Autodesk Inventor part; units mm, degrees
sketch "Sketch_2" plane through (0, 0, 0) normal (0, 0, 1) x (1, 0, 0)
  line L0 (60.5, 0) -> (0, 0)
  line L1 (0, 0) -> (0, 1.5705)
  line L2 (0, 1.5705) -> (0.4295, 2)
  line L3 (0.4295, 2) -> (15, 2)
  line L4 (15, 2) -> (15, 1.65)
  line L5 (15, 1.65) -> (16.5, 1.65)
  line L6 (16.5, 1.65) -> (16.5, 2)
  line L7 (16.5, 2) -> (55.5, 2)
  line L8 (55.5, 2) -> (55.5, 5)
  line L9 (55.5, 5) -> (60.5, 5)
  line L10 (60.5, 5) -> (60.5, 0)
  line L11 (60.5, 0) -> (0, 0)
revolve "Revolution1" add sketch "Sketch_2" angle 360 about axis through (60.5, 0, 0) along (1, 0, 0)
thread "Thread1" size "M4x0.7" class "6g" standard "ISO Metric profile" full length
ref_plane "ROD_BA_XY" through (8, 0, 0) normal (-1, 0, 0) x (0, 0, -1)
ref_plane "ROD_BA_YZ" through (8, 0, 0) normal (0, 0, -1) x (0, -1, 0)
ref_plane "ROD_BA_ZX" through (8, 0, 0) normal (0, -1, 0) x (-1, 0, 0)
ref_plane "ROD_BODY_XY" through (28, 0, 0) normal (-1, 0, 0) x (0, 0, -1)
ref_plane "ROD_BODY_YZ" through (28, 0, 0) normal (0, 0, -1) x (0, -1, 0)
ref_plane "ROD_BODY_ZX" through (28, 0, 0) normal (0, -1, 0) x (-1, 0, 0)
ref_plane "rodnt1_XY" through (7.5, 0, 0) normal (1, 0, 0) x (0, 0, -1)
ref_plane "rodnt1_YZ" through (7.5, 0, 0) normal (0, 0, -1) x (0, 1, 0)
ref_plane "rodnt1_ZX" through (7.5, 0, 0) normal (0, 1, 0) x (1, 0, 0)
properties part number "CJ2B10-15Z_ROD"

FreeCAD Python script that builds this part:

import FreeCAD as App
import Part
import Sketcher
from FreeCAD import Vector
Q = App.Units.Quantity


def add_polygon(sketch, points):
    """Adds a closed chain of lines whose ends are joined by coincident constraints."""
    first, n = sketch.GeometryCount, len(points)
    for a, b in zip(points, points[1:] + points[:1]):
        sketch.addGeometry(Part.LineSegment(App.Vector(*a, 0), App.Vector(*b, 0)), False)
    for i in range(n):
        sketch.addConstraint(Sketcher.Constraint("Coincident", first + i, 2, first + (i + 1) % n, 1))

doc = App.newDocument("Part")
body = doc.addObject("PartDesign::Body", "Body")

# Sketch on XY plane
sketch1 = body.newObject("Sketcher::SketchObject", "Sketch")
sketch1.AttachmentSupport = (doc.getObject("XY_Plane"), [""])
sketch1.MapMode = "FlatFace"
add_polygon(sketch1, [(0, 0), (60.5, 0), (60.5, 5), (55.5, 5), (55.5, 2), (16.5, 2), (16.5, 1.65), (15, 1.65), (15, 2), (0.43, 2), (0, 1.57)])  # lines 0-10
sketch1.addConstraint(Sketcher.Constraint("Horizontal", 0))
sketch1.addConstraint(Sketcher.Constraint("Vertical", 1))
sketch1.addConstraint(Sketcher.Constraint("Horizontal", 2))
sketch1.addConstraint(Sketcher.Constraint("Vertical", 3))
sketch1.addConstraint(Sketcher.Constraint("Horizontal", 4))
sketch1.addConstraint(Sketcher.Constraint("Vertical", 5))
sketch1.addConstraint(Sketcher.Constraint("Horizontal", 6))
sketch1.addConstraint(Sketcher.Constraint("Vertical", 7))
sketch1.addConstraint(Sketcher.Constraint("Horizontal", 8))
sketch1.addConstraint(Sketcher.Constraint("Vertical", 10))
sketch1.addConstraint(Sketcher.Constraint("Coincident", 10, 2, -1, 1))
sketch1.addConstraint(Sketcher.Constraint("Horizontal", 4, 2, 7, 2))
sketch1.addConstraint(Sketcher.Constraint("Equal", 2, 1))
sketch1.addConstraint(Sketcher.Constraint("DistanceX", 2, 2, 2, 1, 5.0))
sketch1.addConstraint(Sketcher.Constraint("DistanceX", 4, 2, 4, 1, 39.0))
sketch1.addConstraint(Sketcher.Constraint("DistanceY", 3, 2, 3, 1, 3.0))
sketch1.addConstraint(Sketcher.Constraint("Angle", 9, Q("-135 deg")))
sketch1.addConstraint(Sketcher.Constraint("DistanceX", 0, 1, 0, 2, 60.5))
sketch1.addConstraint(Sketcher.Constraint("DistanceX", 6, 2, 6, 1, 1.5))
sketch1.addConstraint(Sketcher.Constraint("DistanceY", 5, 2, 5, 1, 0.35))
sketch1.addConstraint(Sketcher.Constraint("DistanceX", 8, 2, 8, 1, 14.5705))
revolution = body.newObject("PartDesign::Revolution", "Revolution")
revolution.Profile = sketch1
revolution.ReferenceAxis = (sketch1, ["H_Axis"])
revolution.Angle = 360

doc.recompute()
